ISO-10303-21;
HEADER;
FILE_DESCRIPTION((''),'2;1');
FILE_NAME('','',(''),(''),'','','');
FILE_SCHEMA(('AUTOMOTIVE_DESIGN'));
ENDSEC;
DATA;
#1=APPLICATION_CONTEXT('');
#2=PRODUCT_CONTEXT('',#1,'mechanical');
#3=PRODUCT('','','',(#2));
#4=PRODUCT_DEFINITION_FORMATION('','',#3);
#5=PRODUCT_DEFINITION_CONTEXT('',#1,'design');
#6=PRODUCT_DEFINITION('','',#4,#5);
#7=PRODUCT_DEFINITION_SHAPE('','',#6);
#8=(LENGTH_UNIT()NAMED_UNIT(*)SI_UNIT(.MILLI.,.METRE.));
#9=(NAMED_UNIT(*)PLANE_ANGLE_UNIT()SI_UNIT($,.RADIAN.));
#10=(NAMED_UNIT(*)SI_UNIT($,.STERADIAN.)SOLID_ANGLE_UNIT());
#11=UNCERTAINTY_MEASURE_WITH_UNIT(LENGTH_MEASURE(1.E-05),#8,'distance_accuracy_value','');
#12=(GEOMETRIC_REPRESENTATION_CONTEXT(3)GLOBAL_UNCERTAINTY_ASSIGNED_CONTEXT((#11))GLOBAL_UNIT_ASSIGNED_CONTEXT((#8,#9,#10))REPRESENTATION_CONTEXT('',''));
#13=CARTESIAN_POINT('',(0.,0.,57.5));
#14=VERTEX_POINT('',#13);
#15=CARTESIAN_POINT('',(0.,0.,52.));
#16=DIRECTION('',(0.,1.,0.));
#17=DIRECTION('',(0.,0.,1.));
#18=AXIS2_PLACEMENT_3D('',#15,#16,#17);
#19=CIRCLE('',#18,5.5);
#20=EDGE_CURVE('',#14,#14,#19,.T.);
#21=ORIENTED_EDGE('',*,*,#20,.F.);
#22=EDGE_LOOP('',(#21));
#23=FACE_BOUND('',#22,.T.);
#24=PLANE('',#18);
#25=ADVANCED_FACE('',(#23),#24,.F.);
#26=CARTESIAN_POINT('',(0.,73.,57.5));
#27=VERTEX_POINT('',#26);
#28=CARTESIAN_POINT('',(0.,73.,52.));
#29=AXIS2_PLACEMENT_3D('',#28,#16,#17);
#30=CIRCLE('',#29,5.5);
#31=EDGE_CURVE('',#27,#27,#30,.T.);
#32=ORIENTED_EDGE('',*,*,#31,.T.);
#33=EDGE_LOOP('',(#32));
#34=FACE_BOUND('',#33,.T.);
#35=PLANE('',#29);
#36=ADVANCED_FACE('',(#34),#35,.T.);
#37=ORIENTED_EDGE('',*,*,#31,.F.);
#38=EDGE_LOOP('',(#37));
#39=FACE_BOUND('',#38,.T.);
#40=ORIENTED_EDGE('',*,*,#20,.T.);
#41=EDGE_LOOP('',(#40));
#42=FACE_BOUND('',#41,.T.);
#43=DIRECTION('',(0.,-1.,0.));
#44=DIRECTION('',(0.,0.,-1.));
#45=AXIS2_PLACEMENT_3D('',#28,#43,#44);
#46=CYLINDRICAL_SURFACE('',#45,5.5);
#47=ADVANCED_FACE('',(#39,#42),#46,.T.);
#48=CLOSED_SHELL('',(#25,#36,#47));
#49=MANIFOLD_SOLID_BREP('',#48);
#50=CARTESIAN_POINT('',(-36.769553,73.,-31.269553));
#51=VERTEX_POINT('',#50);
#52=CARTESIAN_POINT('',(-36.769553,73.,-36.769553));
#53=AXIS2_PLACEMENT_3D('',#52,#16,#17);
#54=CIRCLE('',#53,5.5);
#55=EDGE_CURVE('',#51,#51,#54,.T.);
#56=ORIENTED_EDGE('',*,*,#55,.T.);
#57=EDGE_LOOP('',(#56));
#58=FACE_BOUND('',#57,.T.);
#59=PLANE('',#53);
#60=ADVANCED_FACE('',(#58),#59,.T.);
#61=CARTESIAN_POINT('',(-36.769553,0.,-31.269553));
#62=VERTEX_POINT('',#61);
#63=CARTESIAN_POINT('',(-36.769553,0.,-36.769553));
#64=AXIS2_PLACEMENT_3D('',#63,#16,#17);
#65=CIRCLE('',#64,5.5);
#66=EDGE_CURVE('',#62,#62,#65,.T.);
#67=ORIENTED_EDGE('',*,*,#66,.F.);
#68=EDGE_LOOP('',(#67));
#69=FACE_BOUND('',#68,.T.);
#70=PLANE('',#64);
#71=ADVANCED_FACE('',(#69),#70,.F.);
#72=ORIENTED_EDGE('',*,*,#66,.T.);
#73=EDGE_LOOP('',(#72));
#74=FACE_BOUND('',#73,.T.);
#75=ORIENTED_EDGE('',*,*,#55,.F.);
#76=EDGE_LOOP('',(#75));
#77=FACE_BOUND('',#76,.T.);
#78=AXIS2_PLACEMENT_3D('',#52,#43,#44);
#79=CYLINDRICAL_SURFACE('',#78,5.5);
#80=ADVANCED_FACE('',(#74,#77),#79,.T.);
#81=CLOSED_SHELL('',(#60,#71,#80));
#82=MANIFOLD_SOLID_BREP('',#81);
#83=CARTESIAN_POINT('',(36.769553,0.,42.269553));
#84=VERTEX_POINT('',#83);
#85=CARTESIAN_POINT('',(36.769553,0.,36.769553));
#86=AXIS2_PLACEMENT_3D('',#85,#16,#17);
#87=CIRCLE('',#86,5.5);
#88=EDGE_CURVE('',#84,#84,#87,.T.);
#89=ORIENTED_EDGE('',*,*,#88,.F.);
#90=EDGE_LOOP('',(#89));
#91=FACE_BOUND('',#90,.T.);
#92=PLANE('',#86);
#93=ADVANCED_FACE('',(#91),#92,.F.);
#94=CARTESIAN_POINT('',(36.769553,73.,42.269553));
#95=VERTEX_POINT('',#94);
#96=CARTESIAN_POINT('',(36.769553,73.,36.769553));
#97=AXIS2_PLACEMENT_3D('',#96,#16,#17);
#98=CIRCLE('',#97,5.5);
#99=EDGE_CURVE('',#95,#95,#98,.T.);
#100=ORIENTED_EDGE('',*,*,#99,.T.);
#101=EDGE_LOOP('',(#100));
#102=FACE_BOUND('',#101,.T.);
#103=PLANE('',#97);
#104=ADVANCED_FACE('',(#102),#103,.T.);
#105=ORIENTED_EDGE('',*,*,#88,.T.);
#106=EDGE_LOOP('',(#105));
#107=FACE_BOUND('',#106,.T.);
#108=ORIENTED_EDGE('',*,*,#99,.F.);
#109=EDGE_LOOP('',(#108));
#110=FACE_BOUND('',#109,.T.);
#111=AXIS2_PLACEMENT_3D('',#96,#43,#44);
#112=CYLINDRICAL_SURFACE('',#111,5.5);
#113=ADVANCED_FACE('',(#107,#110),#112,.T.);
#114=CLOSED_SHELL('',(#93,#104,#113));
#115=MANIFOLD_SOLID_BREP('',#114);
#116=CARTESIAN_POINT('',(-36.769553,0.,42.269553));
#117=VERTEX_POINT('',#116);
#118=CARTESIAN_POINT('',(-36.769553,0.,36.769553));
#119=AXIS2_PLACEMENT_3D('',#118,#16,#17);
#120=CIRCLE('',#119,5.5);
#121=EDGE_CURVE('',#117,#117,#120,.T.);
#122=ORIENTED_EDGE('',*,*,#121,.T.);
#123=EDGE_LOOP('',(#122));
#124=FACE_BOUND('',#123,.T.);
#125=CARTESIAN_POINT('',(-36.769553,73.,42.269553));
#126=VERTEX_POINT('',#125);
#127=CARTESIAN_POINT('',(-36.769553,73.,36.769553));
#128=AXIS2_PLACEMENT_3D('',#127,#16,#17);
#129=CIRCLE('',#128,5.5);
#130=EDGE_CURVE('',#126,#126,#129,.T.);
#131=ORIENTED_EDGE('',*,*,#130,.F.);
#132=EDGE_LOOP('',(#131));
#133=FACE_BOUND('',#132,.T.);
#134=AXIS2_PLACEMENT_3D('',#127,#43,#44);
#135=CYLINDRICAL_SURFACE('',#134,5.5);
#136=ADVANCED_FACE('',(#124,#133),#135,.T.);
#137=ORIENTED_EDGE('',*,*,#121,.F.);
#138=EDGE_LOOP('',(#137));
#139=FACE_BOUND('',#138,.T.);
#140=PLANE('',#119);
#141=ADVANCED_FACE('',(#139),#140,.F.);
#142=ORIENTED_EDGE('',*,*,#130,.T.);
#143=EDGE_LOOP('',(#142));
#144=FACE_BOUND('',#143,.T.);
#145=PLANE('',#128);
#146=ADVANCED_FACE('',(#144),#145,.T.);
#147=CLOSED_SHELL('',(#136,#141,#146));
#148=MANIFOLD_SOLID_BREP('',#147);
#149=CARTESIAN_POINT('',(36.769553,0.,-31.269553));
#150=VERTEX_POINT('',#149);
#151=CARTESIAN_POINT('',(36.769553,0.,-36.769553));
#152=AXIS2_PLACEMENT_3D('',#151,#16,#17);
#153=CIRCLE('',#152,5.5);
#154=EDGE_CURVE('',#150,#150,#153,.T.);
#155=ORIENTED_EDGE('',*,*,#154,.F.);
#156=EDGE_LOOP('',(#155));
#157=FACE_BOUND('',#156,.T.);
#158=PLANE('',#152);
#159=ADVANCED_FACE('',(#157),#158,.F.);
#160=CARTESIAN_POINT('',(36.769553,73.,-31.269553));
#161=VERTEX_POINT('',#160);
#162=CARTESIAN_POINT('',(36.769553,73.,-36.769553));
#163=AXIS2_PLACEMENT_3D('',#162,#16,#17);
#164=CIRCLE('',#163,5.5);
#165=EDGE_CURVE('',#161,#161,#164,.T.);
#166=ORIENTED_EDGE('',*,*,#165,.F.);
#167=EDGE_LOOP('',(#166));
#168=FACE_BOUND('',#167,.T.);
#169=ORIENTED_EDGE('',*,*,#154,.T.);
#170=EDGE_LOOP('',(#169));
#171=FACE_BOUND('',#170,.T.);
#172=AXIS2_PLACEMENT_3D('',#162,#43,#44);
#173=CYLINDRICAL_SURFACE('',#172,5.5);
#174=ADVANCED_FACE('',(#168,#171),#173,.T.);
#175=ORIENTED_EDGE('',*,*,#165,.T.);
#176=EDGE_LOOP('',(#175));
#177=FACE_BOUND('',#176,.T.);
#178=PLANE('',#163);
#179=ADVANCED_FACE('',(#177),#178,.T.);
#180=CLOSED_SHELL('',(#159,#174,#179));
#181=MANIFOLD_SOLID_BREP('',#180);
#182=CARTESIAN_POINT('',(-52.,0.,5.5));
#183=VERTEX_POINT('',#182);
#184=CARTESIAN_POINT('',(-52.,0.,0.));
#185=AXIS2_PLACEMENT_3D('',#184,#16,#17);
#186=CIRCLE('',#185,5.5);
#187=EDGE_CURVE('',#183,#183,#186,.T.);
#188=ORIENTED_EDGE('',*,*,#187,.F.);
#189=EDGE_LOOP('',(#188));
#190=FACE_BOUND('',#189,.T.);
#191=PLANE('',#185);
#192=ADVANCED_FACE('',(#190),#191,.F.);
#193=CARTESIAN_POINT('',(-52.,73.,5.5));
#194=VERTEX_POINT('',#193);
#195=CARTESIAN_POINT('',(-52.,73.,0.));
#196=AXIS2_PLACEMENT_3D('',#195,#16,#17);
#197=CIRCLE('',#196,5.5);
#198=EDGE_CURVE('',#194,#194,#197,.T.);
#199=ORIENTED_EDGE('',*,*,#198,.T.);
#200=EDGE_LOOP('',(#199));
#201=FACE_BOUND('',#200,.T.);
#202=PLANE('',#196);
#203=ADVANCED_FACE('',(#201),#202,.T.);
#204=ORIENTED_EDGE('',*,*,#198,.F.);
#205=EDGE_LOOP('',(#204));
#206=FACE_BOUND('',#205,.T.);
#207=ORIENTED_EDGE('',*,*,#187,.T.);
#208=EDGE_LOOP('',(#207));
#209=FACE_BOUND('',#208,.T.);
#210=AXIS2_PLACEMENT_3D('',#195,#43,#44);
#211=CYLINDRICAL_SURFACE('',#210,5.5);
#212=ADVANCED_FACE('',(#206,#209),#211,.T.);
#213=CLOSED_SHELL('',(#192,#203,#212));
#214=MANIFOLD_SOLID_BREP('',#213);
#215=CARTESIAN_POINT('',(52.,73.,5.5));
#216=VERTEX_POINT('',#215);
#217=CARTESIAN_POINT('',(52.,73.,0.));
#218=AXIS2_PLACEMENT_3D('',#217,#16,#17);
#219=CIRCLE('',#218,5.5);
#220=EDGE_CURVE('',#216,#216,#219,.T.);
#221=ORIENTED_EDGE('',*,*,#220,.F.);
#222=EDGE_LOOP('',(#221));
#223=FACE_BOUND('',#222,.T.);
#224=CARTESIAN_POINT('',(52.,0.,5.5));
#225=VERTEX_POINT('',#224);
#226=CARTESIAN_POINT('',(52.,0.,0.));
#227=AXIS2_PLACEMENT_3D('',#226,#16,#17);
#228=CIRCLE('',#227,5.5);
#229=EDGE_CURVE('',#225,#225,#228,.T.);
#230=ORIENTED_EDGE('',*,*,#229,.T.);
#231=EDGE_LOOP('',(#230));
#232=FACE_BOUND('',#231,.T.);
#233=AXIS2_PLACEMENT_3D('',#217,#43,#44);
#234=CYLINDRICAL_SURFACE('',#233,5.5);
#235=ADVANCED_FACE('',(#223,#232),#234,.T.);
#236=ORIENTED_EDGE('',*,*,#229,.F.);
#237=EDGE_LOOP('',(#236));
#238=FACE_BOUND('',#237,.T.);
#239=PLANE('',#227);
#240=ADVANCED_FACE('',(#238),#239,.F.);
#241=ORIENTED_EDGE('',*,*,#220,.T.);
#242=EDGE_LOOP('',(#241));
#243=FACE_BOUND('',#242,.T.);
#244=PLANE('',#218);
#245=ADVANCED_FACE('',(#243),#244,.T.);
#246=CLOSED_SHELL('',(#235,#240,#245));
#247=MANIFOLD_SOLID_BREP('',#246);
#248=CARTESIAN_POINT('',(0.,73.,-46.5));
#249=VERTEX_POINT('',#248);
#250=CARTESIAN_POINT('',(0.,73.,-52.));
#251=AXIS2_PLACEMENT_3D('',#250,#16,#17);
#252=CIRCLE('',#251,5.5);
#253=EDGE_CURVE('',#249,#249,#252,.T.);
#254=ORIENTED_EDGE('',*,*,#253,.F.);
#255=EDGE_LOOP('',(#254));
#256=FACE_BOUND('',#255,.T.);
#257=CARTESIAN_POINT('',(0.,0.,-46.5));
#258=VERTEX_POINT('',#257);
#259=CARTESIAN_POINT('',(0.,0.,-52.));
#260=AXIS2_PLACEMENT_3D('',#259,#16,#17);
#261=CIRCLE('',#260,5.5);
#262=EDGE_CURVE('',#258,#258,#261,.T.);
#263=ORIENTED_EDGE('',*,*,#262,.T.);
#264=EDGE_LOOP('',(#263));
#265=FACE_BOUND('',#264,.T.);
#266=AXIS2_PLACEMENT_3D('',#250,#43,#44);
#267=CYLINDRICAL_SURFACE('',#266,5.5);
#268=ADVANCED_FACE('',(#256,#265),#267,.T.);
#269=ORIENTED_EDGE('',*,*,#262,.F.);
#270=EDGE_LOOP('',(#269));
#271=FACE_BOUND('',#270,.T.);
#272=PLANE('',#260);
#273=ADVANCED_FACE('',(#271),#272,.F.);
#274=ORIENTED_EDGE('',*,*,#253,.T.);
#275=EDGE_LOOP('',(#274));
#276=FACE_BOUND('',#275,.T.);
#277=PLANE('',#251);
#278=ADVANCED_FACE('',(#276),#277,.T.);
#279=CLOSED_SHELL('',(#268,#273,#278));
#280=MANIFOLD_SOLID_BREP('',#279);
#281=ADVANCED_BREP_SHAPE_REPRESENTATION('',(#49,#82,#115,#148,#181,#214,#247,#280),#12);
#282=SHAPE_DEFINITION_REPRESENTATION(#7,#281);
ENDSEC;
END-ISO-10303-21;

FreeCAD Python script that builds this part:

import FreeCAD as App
import Part
import Sketcher

doc = App.newDocument("Part")
body = doc.addObject("PartDesign::Body", "Body")

sketch1 = body.newObject("Sketcher::SketchObject", "Sketch")
sketch1.AttachmentSupport = (doc.getObject("XZ_Plane"), [""])
sketch1.MapMode = "FlatFace"
sketch1.addGeometry(Part.Circle(App.Vector(-52, 0, 0), App.Vector(0, 0, 1), 5.5), False)
sketch1.addConstraint(Sketcher.Constraint("PointOnObject", 0, 3, -1))
sketch1.addConstraint(Sketcher.Constraint("Diameter", 0, 11.0))
sketch1.addConstraint(Sketcher.Constraint("DistanceX", 0, 3, -1, 1, 52.0))
pad1 = body.newObject("PartDesign::Pad", "Pad")
pad1.Profile = sketch1
pad1.Length = 73
pad1.Reversed = True
body2 = doc.addObject("PartDesign::Body", "Body001")

sketch2 = body2.newObject("Sketcher::SketchObject", "Sketch001")
sketch2.AttachmentSupport = (doc.getObject("XZ_Plane001"), [""])
sketch2.MapMode = "FlatFace"
sketch2.addGeometry(Part.Circle(App.Vector(-36.769553, -36.769553, 0), App.Vector(0, 0, 1), 5.5), False)
sketch2.addConstraint(Sketcher.Constraint("Diameter", 0, 11.0))
sketch2.addConstraint(Sketcher.Constraint("DistanceX", 0, 3, -1, 1, 36.769553))
sketch2.addConstraint(Sketcher.Constraint("DistanceY", 0, 3, -1, 1, 36.769553))
pad2 = body2.newObject("PartDesign::Pad", "Pad001")
pad2.Profile = sketch2
pad2.Length = 73
pad2.Reversed = True
body3 = doc.addObject("PartDesign::Body", "Body002")

sketch3 = body3.newObject("Sketcher::SketchObject", "Sketch002")
sketch3.AttachmentSupport = (doc.getObject("XZ_Plane002"), [""])
sketch3.MapMode = "FlatFace"
sketch3.addGeometry(Part.Circle(App.Vector(0, -52, 0), App.Vector(0, 0, 1), 5.5), False)
sketch3.addConstraint(Sketcher.Constraint("PointOnObject", 0, 3, -2))
sketch3.addConstraint(Sketcher.Constraint("Diameter", 0, 11.0))
sketch3.addConstraint(Sketcher.Constraint("DistanceY", 0, 3, -1, 1, 52.0))
pad3 = body3.newObject("PartDesign::Pad", "Pad002")
pad3.Profile = sketch3
pad3.Length = 73
pad3.Reversed = True
body4 = doc.addObject("PartDesign::Body", "Body003")

sketch4 = body4.newObject("Sketcher::SketchObject", "Sketch003")
sketch4.AttachmentSupport = (doc.getObject("XZ_Plane003"), [""])
sketch4.MapMode = "FlatFace"
sketch4.addGeometry(Part.Circle(App.Vector(36.769553, -36.769553, 0), App.Vector(0, 0, 1), 5.5), False)
sketch4.addConstraint(Sketcher.Constraint("Diameter", 0, 11.0))
sketch4.addConstraint(Sketcher.Constraint("DistanceX", -1, 1, 0, 3, 36.769553))
sketch4.addConstraint(Sketcher.Constraint("DistanceY", 0, 3, -1, 1, 36.769553))
pad4 = body4.newObject("PartDesign::Pad", "Pad003")
pad4.Profile = sketch4
pad4.Length = 73
pad4.Reversed = True
body5 = doc.addObject("PartDesign::Body", "Body004")

sketch5 = body5.newObject("Sketcher::SketchObject", "Sketch004")
sketch5.AttachmentSupport = (doc.getObject("XZ_Plane004"), [""])
sketch5.MapMode = "FlatFace"
sketch5.addGeometry(Part.Circle(App.Vector(52, 0, 0), App.Vector(0, 0, 1), 5.5), False)
sketch5.addConstraint(Sketcher.Constraint("PointOnObject", 0, 3, -1))
sketch5.addConstraint(Sketcher.Constraint("Diameter", 0, 11.0))
sketch5.addConstraint(Sketcher.Constraint("DistanceX", -1, 1, 0, 3, 52.0))
pad5 = body5.newObject("PartDesign::Pad", "Pad004")
pad5.Profile = sketch5
pad5.Length = 73
pad5.Reversed = True
body6 = doc.addObject("PartDesign::Body", "Body005")

sketch6 = body6.newObject("Sketcher::SketchObject", "Sketch005")
sketch6.AttachmentSupport = (doc.getObject("XZ_Plane005"), [""])
sketch6.MapMode = "FlatFace"
sketch6.addGeometry(Part.Circle(App.Vector(36.769553, 36.769553, 0), App.Vector(0, 0, 1), 5.5), False)
sketch6.addConstraint(Sketcher.Constraint("Diameter", 0, 11.0))
sketch6.addConstraint(Sketcher.Constraint("DistanceX", -1, 1, 0, 3, 36.769553))
sketch6.addConstraint(Sketcher.Constraint("DistanceY", -1, 1, 0, 3, 36.769553))
pad6 = body6.newObject("PartDesign::Pad", "Pad005")
pad6.Profile = sketch6
pad6.Length = 73
pad6.Reversed = True
body7 = doc.addObject("PartDesign::Body", "Body006")

sketch7 = body7.newObject("Sketcher::SketchObject", "Sketch006")
sketch7.AttachmentSupport = (doc.getObject("XZ_Plane006"), [""])
sketch7.MapMode = "FlatFace"
sketch7.addGeometry(Part.Circle(App.Vector(0, 52, 0), App.Vector(0, 0, 1), 5.5), False)
sketch7.addConstraint(Sketcher.Constraint("PointOnObject", 0, 3, -2))
sketch7.addConstraint(Sketcher.Constraint("Diameter", 0, 11.0))
sketch7.addConstraint(Sketcher.Constraint("DistanceY", -1, 1, 0, 3, 52.0))
pad7 = body7.newObject("PartDesign::Pad", "Pad006")
pad7.Profile = sketch7
pad7.Length = 73
pad7.Reversed = True
body8 = doc.addObject("PartDesign::Body", "Body007")

sketch8 = body8.newObject("Sketcher::SketchObject", "Sketch007")
sketch8.AttachmentSupport = (doc.getObject("XZ_Plane007"), [""])
sketch8.MapMode = "FlatFace"
sketch8.addGeometry(Part.Circle(App.Vector(-36.769553, 36.769553, 0), App.Vector(0, 0, 1), 5.5), False)
sketch8.addConstraint(Sketcher.Constraint("Diameter", 0, 11.0))
sketch8.addConstraint(Sketcher.Constraint("DistanceX", 0, 3, -1, 1, 36.769553))
sketch8.addConstraint(Sketcher.Constraint("DistanceY", -1, 1, 0, 3, 36.769553))
pad8 = body8.newObject("PartDesign::Pad", "Pad007")
pad8.Profile = sketch8
pad8.Length = 73
pad8.Reversed = True

doc.recompute()
